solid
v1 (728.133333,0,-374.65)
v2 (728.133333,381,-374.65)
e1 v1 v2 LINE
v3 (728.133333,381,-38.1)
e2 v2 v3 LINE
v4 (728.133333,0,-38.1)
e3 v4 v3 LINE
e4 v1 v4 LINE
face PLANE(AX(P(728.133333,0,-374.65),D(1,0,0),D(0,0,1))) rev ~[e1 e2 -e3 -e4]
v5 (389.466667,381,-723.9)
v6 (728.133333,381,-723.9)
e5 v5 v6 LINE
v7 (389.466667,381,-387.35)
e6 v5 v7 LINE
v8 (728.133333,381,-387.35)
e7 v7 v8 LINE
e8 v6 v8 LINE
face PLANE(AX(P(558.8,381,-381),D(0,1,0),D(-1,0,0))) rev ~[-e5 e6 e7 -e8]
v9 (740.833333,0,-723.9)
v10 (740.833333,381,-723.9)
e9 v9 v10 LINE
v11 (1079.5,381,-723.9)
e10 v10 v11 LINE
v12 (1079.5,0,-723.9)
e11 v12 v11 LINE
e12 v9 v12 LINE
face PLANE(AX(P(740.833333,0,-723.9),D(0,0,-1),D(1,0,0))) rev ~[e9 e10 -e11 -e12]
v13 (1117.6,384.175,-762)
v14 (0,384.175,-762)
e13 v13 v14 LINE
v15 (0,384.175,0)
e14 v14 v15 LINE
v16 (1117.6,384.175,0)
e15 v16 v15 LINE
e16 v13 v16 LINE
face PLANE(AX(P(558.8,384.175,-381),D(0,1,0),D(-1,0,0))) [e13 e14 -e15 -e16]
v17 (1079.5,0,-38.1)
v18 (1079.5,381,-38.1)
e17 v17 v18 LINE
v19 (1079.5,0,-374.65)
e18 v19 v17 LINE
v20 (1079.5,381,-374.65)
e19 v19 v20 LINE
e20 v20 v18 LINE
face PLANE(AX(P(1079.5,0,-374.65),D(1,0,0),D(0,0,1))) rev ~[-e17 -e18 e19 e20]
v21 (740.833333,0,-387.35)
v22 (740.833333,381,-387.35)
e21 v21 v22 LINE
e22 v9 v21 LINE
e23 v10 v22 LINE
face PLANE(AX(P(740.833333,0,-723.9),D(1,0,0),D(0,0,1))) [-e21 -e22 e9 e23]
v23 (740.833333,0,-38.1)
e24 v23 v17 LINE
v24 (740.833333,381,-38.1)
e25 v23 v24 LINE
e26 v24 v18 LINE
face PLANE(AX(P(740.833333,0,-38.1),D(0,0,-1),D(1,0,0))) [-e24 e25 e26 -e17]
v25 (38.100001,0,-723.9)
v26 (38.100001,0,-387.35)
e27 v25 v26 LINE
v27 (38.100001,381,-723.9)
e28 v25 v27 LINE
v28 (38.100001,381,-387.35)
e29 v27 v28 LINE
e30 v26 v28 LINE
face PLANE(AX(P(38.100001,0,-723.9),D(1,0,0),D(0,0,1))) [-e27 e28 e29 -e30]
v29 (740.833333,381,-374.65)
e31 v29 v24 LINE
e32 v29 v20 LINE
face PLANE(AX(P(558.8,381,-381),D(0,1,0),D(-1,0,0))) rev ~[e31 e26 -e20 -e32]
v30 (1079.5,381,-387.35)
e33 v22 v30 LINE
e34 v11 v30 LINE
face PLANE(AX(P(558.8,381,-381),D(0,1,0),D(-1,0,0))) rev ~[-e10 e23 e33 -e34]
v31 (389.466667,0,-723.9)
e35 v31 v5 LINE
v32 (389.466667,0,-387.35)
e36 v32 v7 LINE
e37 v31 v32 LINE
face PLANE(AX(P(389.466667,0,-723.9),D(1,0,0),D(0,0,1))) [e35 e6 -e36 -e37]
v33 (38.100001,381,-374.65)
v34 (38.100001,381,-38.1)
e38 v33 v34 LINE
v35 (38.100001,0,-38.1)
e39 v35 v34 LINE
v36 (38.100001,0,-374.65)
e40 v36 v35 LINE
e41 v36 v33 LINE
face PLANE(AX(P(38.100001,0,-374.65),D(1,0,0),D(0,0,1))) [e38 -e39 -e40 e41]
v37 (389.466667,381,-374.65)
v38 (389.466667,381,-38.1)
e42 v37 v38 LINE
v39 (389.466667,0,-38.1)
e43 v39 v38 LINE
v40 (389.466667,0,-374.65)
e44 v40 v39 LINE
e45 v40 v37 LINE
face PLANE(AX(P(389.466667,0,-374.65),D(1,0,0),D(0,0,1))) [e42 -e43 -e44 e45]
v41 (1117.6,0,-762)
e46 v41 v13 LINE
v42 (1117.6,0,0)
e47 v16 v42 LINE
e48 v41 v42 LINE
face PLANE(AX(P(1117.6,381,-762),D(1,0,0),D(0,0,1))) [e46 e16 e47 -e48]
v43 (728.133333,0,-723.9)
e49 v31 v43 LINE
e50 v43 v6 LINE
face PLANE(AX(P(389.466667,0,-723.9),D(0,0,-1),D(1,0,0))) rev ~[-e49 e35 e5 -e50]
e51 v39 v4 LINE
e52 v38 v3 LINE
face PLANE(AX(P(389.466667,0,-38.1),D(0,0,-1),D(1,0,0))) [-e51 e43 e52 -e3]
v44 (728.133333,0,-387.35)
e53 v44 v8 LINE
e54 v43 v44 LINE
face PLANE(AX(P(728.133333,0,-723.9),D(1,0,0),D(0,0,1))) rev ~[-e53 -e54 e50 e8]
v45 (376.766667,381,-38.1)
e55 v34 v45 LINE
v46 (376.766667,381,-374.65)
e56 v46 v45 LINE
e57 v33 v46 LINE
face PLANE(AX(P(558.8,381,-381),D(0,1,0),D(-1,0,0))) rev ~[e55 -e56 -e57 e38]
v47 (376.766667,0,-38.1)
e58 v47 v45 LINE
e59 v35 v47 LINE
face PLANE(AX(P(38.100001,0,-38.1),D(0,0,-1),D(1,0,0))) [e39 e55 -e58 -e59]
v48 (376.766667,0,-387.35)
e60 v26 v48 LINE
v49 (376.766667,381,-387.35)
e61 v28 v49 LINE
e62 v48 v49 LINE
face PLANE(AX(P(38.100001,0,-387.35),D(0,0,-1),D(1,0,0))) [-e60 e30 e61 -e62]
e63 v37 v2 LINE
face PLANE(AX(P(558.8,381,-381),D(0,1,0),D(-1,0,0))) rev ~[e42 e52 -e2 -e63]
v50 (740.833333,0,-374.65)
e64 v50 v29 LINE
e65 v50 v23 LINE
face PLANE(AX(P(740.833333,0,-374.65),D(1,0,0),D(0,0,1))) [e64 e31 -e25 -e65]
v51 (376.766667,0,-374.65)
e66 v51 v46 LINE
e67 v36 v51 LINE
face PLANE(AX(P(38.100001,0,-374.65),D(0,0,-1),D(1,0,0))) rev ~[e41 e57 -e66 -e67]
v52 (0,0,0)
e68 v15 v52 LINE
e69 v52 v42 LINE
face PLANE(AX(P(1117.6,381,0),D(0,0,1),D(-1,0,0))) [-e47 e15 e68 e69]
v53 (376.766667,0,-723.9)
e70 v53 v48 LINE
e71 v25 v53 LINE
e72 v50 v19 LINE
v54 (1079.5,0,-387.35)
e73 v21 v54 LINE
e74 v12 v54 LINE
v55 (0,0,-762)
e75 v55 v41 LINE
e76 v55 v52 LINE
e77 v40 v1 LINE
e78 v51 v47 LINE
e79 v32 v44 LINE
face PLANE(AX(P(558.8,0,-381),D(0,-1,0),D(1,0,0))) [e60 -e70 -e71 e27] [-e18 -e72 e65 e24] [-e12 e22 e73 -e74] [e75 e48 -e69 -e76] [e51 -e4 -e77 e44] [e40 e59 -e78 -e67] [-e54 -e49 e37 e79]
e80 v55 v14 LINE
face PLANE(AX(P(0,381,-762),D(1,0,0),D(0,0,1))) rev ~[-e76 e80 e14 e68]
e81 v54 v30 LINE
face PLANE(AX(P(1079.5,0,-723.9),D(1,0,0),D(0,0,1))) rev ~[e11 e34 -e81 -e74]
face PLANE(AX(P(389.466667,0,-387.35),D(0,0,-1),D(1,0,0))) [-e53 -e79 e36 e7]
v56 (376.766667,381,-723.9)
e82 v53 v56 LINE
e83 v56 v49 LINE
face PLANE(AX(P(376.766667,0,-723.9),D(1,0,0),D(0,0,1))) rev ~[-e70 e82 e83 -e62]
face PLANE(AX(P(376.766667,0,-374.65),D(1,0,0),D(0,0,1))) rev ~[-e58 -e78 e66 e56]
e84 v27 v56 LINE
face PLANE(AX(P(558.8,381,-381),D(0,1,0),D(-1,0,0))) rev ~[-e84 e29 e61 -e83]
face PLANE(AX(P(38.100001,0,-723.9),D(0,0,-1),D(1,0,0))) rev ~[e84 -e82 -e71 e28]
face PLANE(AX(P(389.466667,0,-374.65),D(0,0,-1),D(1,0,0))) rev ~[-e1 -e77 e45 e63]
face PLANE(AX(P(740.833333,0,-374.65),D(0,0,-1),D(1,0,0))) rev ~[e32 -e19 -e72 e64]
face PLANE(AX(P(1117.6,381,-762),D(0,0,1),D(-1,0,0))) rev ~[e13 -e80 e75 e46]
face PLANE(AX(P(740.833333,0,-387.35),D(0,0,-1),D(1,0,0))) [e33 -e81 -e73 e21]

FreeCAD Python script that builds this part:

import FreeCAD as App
import Part
import Sketcher
from FreeCAD import Vector
Q = App.Units.Quantity

doc = App.newDocument("Part")
body = doc.addObject("PartDesign::Body", "Body")

sketch1 = body.newObject("Sketcher::SketchObject", "Sketch")
sketch1.AttachmentSupport = (doc.getObject("XZ_Plane"), [""])
sketch1.MapMode = "FlatFace"
sketch1.addGeometry([
    Part.LineSegment(Vector(0, 0, 0), Vector(0, -762, 0)),
    Part.LineSegment(Vector(0, -762, 0), Vector(1118, -762, 0)),
    Part.LineSegment(Vector(1118, -762, 0), Vector(1118, 0, 0)),
    Part.LineSegment(Vector(1118, 0, 0), Vector(0, 0, 0)),
    Part.LineSegment(Vector(377, -724, 0), Vector(38, -724, 0)),
    Part.LineSegment(Vector(38, -724, 0), Vector(38, -387, 0)),
    Part.LineSegment(Vector(38, -387, 0), Vector(377, -387, 0)),
    Part.LineSegment(Vector(377, -387, 0), Vector(377, -724, 0)),
    Part.LineSegment(Vector(728, -724, 0), Vector(389, -724, 0)),
    Part.LineSegment(Vector(389, -724, 0), Vector(389, -387, 0)),
    Part.LineSegment(Vector(389, -387, 0), Vector(728, -387, 0)),
    Part.LineSegment(Vector(728, -387, 0), Vector(728, -724, 0)),
    Part.LineSegment(Vector(1080, -724, 0), Vector(741, -724, 0)),
    Part.LineSegment(Vector(741, -724, 0), Vector(741, -387, 0)),
    Part.LineSegment(Vector(741, -387, 0), Vector(1080, -387, 0)),
    Part.LineSegment(Vector(1080, -387, 0), Vector(1080, -724, 0)),
    Part.LineSegment(Vector(377, -375, 0), Vector(38, -375, 0)),
    Part.LineSegment(Vector(38, -375, 0), Vector(38, -38, 0)),
    Part.LineSegment(Vector(38, -38, 0), Vector(377, -38, 0)),
    Part.LineSegment(Vector(377, -38, 0), Vector(377, -375, 0)),
    Part.LineSegment(Vector(728, -375, 0), Vector(389, -375, 0)),
    Part.LineSegment(Vector(389, -375, 0), Vector(389, -38, 0)),
    Part.LineSegment(Vector(389, -38, 0), Vector(728, -38, 0)),
    Part.LineSegment(Vector(728, -38, 0), Vector(728, -375, 0)),
    Part.LineSegment(Vector(1080, -375, 0), Vector(741, -375, 0)),
    Part.LineSegment(Vector(741, -375, 0), Vector(741, -38, 0)),
    Part.LineSegment(Vector(741, -38, 0), Vector(1080, -38, 0)),
    Part.LineSegment(Vector(1080, -38, 0), Vector(1080, -375, 0)),
], False)
sketch1.addConstraint([
    Sketcher.Constraint("Coincident", 0, 2, 1, 1),
    Sketcher.Constraint("Coincident", 1, 2, 2, 1),
    Sketcher.Constraint("Coincident", 2, 2, 3, 1),
    Sketcher.Constraint("Coincident", 3, 2, 0, 1),
    Sketcher.Constraint("Coincident", 4, 2, 5, 1),
    Sketcher.Constraint("Coincident", 5, 2, 6, 1),
    Sketcher.Constraint("Coincident", 6, 2, 7, 1),
    Sketcher.Constraint("Coincident", 7, 2, 4, 1),
    Sketcher.Constraint("Coincident", 8, 2, 9, 1),
    Sketcher.Constraint("Coincident", 9, 2, 10, 1),
    Sketcher.Constraint("Coincident", 10, 2, 11, 1),
    Sketcher.Constraint("Coincident", 11, 2, 8, 1),
    Sketcher.Constraint("Coincident", 12, 2, 13, 1),
    Sketcher.Constraint("Coincident", 13, 2, 14, 1),
    Sketcher.Constraint("Coincident", 14, 2, 15, 1),
    Sketcher.Constraint("Coincident", 15, 2, 12, 1),
    Sketcher.Constraint("Coincident", 16, 2, 17, 1),
    Sketcher.Constraint("Coincident", 17, 2, 18, 1),
    Sketcher.Constraint("Coincident", 18, 2, 19, 1),
    Sketcher.Constraint("Coincident", 19, 2, 16, 1),
    Sketcher.Constraint("Coincident", 20, 2, 21, 1),
    Sketcher.Constraint("Coincident", 21, 2, 22, 1),
    Sketcher.Constraint("Coincident", 22, 2, 23, 1),
    Sketcher.Constraint("Coincident", 23, 2, 20, 1),
    Sketcher.Constraint("Coincident", 24, 2, 25, 1),
    Sketcher.Constraint("Coincident", 25, 2, 26, 1),
    Sketcher.Constraint("Coincident", 26, 2, 27, 1),
    Sketcher.Constraint("Coincident", 27, 2, 24, 1),
    Sketcher.Constraint("Vertical", 0),
    Sketcher.Constraint("Horizontal", 1),
    Sketcher.Constraint("Vertical", 2),
    Sketcher.Constraint("Horizontal", 3),
    Sketcher.Constraint("Horizontal", 4),
    Sketcher.Constraint("Vertical", 5),
    Sketcher.Constraint("Horizontal", 6),
    Sketcher.Constraint("Vertical", 7),
    Sketcher.Constraint("Horizontal", 8),
    Sketcher.Constraint("Vertical", 9),
    Sketcher.Constraint("Horizontal", 10),
    Sketcher.Constraint("Vertical", 11),
    Sketcher.Constraint("Horizontal", 12),
    Sketcher.Constraint("Vertical", 13),
    Sketcher.Constraint("Horizontal", 14),
    Sketcher.Constraint("Vertical", 15),
    Sketcher.Constraint("Horizontal", 16),
    Sketcher.Constraint("Vertical", 17),
    Sketcher.Constraint("Horizontal", 18),
    Sketcher.Constraint("Vertical", 19),
    Sketcher.Constraint("Horizontal", 20),
    Sketcher.Constraint("Vertical", 21),
    Sketcher.Constraint("Horizontal", 22),
    Sketcher.Constraint("Vertical", 23),
    Sketcher.Constraint("Horizontal", 24),
    Sketcher.Constraint("Vertical", 25),
    Sketcher.Constraint("Horizontal", 26),
    Sketcher.Constraint("Vertical", 27),
    Sketcher.Constraint("Coincident", 3, 2, -1, 1),
    Sketcher.Constraint("Horizontal", 7, 2, 8, 2),
    Sketcher.Constraint("Horizontal", 6, 2, 9, 2),
    Sketcher.Constraint("Horizontal", 11, 2, 12, 2),
    Sketcher.Constraint("Horizontal", 10, 2, 13, 2),
    Sketcher.Constraint("Horizontal", 19, 2, 20, 2),
    Sketcher.Constraint("Horizontal", 18, 2, 21, 2),
    Sketcher.Constraint("Horizontal", 23, 2, 24, 2),
    Sketcher.Constraint("Horizontal", 22, 2, 25, 2),
    Sketcher.Constraint("Vertical", 5, 2, 16, 2),
    Sketcher.Constraint("Vertical", 7, 2, 18, 2),
    Sketcher.Constraint("Vertical", 9, 2, 20, 2),
    Sketcher.Constraint("Vertical", 11, 2, 22, 2),
    Sketcher.Constraint("Vertical", 13, 2, 24, 2),
    Sketcher.Constraint("Vertical", 15, 2, 26, 2),
    Sketcher.Constraint("Equal", 6, 8),
    Sketcher.Constraint("Equal", 10, 12),
    Sketcher.Constraint("Equal", 15, 17),
    Sketcher.Constraint("DistanceX", 1, 1, 1, 2, Q("44 in")),
    Sketcher.Constraint("DistanceY", 0, 2, 0, 1, Q("30 in")),
    Sketcher.Constraint("DistanceY", 5, 1, 5, 2, Q("13.25 in")),
    Sketcher.Constraint("DistanceX", -1, 1, 4, 2, Q("1.5 in")),
    Sketcher.Constraint("DistanceY", 4, 2, -1, 1, Q("28.5 in")),
    Sketcher.Constraint("DistanceX", -1, 1, 14, 2, Q("42.5 in")),
    Sketcher.Constraint("DistanceY", 17, 2, -1, 1, Q("1.5 in")),
    Sketcher.Constraint("DistanceX", 7, 2, 8, 2, Q("0.5 in")),
    Sketcher.Constraint("DistanceX", 11, 2, 12, 2, Q("0.5 in")),
])
pad1 = body.newObject("PartDesign::Pad", "Pad")
pad1.Profile = sketch1
pad1.Length = Q("15 in")
pad1.Reversed = True

sketch2 = body.newObject("Sketcher::SketchObject", "Sketch001")
sketch2.AttachmentSupport = (doc.getObject("XZ_Plane"), [""])
sketch2.MapMode = "FlatFace"
sketch2.AttachmentOffset = App.Placement(Vector(0, 0, -15 * 25.4), App.Rotation())
sketch2.addGeometry([
    Part.LineSegment(Vector(1118, 0, 0), Vector(1118, -762, 0)),
    Part.LineSegment(Vector(1118, -762, 0), Vector(0, -762, 0)),
    Part.LineSegment(Vector(0, -762, 0), Vector(0, 0, 0)),
    Part.LineSegment(Vector(0, 0, 0), Vector(1118, 0, 0)),
], False)
sketch2.addConstraint([
    Sketcher.Constraint("Coincident", 0, 2, 1, 1),
    Sketcher.Constraint("Coincident", 1, 2, 2, 1),
    Sketcher.Constraint("Coincident", 2, 2, 3, 1),
    Sketcher.Constraint("Coincident", 3, 2, 0, 1),
    Sketcher.Constraint("Vertical", 0),
    Sketcher.Constraint("Horizontal", 1),
    Sketcher.Constraint("Vertical", 2),
    Sketcher.Constraint("Horizontal", 3),
    Sketcher.Constraint("Coincident", 2, 2, -1, 1),
    Sketcher.Constraint("DistanceX", 1, 2, 1, 1, Q("44 in")),
    Sketcher.Constraint("DistanceY", 0, 2, 0, 1, Q("30 in")),
])
pad2 = body.newObject("PartDesign::Pad", "Pad001")
pad2.Profile = sketch2
pad2.Length = Q("0.125 in")
pad2.Reversed = True

doc.recompute()
